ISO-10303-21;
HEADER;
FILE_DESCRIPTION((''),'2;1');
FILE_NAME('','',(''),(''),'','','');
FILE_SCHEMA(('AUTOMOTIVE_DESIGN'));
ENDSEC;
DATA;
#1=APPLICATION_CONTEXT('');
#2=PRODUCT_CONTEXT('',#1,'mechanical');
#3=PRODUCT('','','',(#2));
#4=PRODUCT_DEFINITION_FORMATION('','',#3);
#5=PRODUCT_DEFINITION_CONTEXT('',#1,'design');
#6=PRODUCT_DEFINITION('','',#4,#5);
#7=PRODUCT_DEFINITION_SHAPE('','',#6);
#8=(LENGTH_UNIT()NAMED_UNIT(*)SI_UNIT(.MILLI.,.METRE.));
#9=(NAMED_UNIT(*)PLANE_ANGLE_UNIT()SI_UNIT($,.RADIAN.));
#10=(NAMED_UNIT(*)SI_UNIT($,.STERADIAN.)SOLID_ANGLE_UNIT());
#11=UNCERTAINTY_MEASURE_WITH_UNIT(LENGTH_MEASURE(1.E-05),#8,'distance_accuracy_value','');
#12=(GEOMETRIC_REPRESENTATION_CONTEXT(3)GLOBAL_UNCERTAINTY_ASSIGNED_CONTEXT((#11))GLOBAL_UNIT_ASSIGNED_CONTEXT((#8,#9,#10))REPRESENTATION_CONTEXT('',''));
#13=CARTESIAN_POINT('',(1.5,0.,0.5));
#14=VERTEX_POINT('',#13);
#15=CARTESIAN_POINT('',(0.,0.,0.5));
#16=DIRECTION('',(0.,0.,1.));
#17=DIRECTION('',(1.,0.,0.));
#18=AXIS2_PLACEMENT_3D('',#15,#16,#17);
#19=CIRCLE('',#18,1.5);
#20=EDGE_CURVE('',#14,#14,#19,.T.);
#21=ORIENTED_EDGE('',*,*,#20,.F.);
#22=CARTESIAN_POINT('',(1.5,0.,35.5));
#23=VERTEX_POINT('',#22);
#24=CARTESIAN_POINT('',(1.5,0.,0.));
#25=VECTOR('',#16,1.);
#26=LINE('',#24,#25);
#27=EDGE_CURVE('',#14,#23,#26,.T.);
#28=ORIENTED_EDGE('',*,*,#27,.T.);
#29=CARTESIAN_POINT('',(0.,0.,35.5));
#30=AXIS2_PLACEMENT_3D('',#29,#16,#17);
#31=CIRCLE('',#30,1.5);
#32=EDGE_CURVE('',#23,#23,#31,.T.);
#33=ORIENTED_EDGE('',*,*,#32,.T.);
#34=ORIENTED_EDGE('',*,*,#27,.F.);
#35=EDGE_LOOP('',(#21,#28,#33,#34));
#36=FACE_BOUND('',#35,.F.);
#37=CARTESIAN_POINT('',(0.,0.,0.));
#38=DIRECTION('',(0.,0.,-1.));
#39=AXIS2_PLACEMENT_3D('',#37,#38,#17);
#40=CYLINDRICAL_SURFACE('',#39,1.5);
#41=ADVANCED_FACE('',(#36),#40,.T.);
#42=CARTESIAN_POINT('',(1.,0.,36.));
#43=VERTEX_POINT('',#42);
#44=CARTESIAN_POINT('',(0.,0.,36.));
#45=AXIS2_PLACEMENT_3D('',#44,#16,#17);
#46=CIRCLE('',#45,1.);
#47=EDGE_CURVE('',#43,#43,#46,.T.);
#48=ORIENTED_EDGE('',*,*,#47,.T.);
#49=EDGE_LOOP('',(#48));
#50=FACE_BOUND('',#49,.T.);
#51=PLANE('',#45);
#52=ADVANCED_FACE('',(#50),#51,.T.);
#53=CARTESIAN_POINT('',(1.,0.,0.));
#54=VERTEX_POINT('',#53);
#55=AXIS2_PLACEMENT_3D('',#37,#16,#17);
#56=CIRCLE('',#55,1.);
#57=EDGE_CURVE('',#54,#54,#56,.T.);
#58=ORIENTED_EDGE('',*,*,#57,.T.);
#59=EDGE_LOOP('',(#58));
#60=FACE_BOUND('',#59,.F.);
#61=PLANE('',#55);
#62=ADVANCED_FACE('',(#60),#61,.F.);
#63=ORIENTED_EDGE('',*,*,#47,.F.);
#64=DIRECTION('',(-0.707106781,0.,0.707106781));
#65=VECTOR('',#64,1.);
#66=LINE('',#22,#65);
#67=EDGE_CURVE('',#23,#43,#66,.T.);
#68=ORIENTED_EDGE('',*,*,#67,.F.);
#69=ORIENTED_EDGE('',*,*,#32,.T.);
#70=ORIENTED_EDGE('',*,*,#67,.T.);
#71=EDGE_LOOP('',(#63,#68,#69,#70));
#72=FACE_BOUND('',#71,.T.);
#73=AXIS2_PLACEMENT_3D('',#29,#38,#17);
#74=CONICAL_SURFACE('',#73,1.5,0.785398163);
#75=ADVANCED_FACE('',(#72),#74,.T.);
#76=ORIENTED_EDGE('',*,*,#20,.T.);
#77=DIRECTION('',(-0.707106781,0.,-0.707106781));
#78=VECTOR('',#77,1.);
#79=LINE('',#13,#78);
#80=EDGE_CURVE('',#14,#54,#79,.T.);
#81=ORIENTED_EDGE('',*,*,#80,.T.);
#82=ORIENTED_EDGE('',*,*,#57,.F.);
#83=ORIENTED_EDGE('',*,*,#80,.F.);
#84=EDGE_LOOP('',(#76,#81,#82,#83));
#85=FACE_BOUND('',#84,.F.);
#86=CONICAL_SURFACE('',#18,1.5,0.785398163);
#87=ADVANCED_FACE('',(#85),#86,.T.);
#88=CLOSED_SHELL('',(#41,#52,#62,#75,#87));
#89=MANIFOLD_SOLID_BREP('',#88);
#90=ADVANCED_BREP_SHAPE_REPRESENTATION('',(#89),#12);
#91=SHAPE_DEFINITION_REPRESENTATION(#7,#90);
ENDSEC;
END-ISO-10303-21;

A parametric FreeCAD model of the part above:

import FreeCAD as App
import Part
import Sketcher
from FreeCAD import Vector
Q = App.Units.Quantity


def edges_at(feature, points):
    """Names of the edges that pass closest to the given points."""
    edges = feature.Shape.Edges
    near = lambda p: min(range(len(edges)), key=lambda i: edges[i].distToShape(Part.Vertex(*p))[0])
    return sorted({f"Edge{near(p) + 1}" for p in points})

doc = App.newDocument("Part")
body = doc.addObject("PartDesign::Body", "Body")

sketch1 = body.newObject("Sketcher::SketchObject", "Sketch")
sketch1.AttachmentSupport = (doc.getObject("XY_Plane"), [""])
sketch1.MapMode = "FlatFace"
sketch1.addGeometry(Part.Circle(Vector(0, 0, 0), Vector(0, 0, 1), 1.5), False)
sketch1.addConstraint(Sketcher.Constraint("Coincident", 0, 3, -1, 1))
sketch1.addConstraint(Sketcher.Constraint("Diameter", 0, Q("3 mm")))
pad1 = body.newObject("PartDesign::Pad", "Pad")
pad1.Profile = sketch1
pad1.Length = 36
doc.recompute()

chamfer = body.newObject("PartDesign::Chamfer", "Chamfer")
chamfer.Base = (pad1, edges_at(pad1, [(-1.5, 0, 0), (-1.5, 0, 36)]))
chamfer.Size = 0.5

doc.recompute()
